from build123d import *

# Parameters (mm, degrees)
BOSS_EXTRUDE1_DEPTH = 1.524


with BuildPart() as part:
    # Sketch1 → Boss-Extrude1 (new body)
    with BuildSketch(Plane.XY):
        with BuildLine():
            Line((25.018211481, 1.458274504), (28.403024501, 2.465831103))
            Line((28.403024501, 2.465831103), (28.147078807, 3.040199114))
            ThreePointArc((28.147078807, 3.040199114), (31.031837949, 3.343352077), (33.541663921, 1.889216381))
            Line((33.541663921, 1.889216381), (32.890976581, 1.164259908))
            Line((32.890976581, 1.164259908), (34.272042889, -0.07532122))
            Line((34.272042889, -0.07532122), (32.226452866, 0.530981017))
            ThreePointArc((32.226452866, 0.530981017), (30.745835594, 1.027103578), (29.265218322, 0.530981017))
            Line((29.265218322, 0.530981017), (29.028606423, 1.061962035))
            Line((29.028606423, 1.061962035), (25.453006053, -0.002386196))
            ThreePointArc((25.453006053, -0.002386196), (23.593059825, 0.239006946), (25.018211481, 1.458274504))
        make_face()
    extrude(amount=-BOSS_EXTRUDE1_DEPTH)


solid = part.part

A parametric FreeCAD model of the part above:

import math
import FreeCAD as App
import Part
import Sketcher

V = App.Vector
Q = App.Units.Quantity

doc = App.newDocument("Part")
body = doc.addObject("PartDesign::Body", "Body")

# Sketch on XY plane
sketch1 = body.newObject("Sketcher::SketchObject", "Sketch")
sketch1.AttachmentSupport = (doc.getObject("XY_Plane"), [""])
sketch1.MapMode = "FlatFace"
sketch1.addGeometry([
    Part.LineSegment(V(28.403025, 2.465831, 0), V(25.018211, 1.458275, 0)),  # 0
    Part.ArcOfCircle(Part.Circle(V(24.576699, 0.531806, 0), V(0, 0, 1), 1.026293), math.radians(64.519633), math.radians(328.633724)),  # 1
    Part.LineSegment(V(25.453006, -0.002386, 0), V(29.028606, 1.061962, 0)),  # 2
    Part.LineSegment(V(29.028606, 1.061962, 0), V(29.265218, 0.530981, 0)),  # 3
    Part.ArcOfCircle(Part.Circle(V(30.745836, -1.430319, 0), V(0, 0, 1), 2.457422), math.radians(52.950245), math.radians(127.049755)),  # 4
    Part.LineSegment(V(32.226453, 0.530981, 0), V(34.272043, -0.075321, 0)),  # 5
    Part.LineSegment(V(34.272043, -0.075321, 0), V(32.890977, 1.16426, 0)),  # 6
    Part.LineSegment(V(32.890977, 1.16426, 0), V(33.541664, 1.889216, 0)),  # 7
    Part.ArcOfCircle(Part.Circle(V(30.054773, -1.236091, 0), V(0, 0, 1), 4.682516), math.radians(41.869936), math.radians(114.042112)),  # 8
    Part.LineSegment(V(28.147079, 3.040199, 0), V(28.403025, 2.465831, 0)),  # 9
], False)
sketch1.addConstraint([
    Sketcher.Constraint("Coincident", 0, 2, 1, 1),
    Sketcher.Constraint("Coincident", 1, 2, 2, 1),
    Sketcher.Constraint("Coincident", 2, 2, 3, 1),
    Sketcher.Constraint("Coincident", 3, 2, 4, 2),
    Sketcher.Constraint("Coincident", 4, 1, 5, 1),
    Sketcher.Constraint("Coincident", 5, 2, 6, 1),
    Sketcher.Constraint("Coincident", 6, 2, 7, 1),
    Sketcher.Constraint("Coincident", 7, 2, 8, 1),
    Sketcher.Constraint("Coincident", 8, 2, 9, 1),
    Sketcher.Constraint("Coincident", 9, 2, 0, 1),
    Sketcher.Constraint("Parallel", 0, 2),
    Sketcher.Constraint("Perpendicular", 6, 7),
    Sketcher.Constraint("Parallel", 3, 9),
    Sketcher.Constraint("Horizontal", 3, 2, 4, 1),
    Sketcher.Constraint("Radius", 1, Q("1.026293 mm")),
    Sketcher.Constraint("Radius", 4, Q("2.457422 mm")),
    Sketcher.Constraint("Radius", 8, Q("4.682516 mm")),
    Sketcher.Constraint("DistanceX", -1, 1, 1, 3, Q("24.576699 mm")),
    Sketcher.Constraint("DistanceY", -1, 1, 8, 2, Q("3.040199 mm")),
    Sketcher.Constraint("DistanceX", 1, 2, 2, 2, Q("3.5756 mm")),
    Sketcher.Constraint("DistanceY", 4, 3, 3, 2, Q("1.9613 mm")),
    Sketcher.Constraint("Distance", 0, Q("3.53159 mm")),
    Sketcher.Constraint("Distance", 2, Q("3.730651 mm")),
    Sketcher.Constraint("Distance", 5, Q("2.133551 mm")),
    Sketcher.Constraint("DistanceY", 4, 3, -1, 1, Q("1.430319 mm")),
    Sketcher.Constraint("DistanceY", 8, 3, -1, 1, Q("1.236091 mm")),
    Sketcher.Constraint("DistanceX", -1, 1, 0, 2, Q("25.018211 mm")),
    Sketcher.Constraint("DistanceX", -1, 1, 3, 2, Q("29.265218 mm")),
    Sketcher.Constraint("DistanceY", 5, 2, -1, 1, Q("0.075321 mm")),
    Sketcher.Constraint("DistanceY", -1, 1, 6, 2, Q("1.16426 mm")),
    Sketcher.Constraint("DistanceX", -1, 1, 8, 2, Q("28.147079 mm")),
    Sketcher.Constraint("DistanceY", -1, 1, 9, 2, Q("2.465831 mm")),
    Sketcher.Constraint("DistanceX", 4, 3, 6, 2, Q("2.145141 mm")),
])
pad1 = body.newObject("PartDesign::Pad", "Pad")
pad1.Profile = sketch1
pad1.Length = Q("0.06 in")
pad1.Reversed = True

doc.recompute()
